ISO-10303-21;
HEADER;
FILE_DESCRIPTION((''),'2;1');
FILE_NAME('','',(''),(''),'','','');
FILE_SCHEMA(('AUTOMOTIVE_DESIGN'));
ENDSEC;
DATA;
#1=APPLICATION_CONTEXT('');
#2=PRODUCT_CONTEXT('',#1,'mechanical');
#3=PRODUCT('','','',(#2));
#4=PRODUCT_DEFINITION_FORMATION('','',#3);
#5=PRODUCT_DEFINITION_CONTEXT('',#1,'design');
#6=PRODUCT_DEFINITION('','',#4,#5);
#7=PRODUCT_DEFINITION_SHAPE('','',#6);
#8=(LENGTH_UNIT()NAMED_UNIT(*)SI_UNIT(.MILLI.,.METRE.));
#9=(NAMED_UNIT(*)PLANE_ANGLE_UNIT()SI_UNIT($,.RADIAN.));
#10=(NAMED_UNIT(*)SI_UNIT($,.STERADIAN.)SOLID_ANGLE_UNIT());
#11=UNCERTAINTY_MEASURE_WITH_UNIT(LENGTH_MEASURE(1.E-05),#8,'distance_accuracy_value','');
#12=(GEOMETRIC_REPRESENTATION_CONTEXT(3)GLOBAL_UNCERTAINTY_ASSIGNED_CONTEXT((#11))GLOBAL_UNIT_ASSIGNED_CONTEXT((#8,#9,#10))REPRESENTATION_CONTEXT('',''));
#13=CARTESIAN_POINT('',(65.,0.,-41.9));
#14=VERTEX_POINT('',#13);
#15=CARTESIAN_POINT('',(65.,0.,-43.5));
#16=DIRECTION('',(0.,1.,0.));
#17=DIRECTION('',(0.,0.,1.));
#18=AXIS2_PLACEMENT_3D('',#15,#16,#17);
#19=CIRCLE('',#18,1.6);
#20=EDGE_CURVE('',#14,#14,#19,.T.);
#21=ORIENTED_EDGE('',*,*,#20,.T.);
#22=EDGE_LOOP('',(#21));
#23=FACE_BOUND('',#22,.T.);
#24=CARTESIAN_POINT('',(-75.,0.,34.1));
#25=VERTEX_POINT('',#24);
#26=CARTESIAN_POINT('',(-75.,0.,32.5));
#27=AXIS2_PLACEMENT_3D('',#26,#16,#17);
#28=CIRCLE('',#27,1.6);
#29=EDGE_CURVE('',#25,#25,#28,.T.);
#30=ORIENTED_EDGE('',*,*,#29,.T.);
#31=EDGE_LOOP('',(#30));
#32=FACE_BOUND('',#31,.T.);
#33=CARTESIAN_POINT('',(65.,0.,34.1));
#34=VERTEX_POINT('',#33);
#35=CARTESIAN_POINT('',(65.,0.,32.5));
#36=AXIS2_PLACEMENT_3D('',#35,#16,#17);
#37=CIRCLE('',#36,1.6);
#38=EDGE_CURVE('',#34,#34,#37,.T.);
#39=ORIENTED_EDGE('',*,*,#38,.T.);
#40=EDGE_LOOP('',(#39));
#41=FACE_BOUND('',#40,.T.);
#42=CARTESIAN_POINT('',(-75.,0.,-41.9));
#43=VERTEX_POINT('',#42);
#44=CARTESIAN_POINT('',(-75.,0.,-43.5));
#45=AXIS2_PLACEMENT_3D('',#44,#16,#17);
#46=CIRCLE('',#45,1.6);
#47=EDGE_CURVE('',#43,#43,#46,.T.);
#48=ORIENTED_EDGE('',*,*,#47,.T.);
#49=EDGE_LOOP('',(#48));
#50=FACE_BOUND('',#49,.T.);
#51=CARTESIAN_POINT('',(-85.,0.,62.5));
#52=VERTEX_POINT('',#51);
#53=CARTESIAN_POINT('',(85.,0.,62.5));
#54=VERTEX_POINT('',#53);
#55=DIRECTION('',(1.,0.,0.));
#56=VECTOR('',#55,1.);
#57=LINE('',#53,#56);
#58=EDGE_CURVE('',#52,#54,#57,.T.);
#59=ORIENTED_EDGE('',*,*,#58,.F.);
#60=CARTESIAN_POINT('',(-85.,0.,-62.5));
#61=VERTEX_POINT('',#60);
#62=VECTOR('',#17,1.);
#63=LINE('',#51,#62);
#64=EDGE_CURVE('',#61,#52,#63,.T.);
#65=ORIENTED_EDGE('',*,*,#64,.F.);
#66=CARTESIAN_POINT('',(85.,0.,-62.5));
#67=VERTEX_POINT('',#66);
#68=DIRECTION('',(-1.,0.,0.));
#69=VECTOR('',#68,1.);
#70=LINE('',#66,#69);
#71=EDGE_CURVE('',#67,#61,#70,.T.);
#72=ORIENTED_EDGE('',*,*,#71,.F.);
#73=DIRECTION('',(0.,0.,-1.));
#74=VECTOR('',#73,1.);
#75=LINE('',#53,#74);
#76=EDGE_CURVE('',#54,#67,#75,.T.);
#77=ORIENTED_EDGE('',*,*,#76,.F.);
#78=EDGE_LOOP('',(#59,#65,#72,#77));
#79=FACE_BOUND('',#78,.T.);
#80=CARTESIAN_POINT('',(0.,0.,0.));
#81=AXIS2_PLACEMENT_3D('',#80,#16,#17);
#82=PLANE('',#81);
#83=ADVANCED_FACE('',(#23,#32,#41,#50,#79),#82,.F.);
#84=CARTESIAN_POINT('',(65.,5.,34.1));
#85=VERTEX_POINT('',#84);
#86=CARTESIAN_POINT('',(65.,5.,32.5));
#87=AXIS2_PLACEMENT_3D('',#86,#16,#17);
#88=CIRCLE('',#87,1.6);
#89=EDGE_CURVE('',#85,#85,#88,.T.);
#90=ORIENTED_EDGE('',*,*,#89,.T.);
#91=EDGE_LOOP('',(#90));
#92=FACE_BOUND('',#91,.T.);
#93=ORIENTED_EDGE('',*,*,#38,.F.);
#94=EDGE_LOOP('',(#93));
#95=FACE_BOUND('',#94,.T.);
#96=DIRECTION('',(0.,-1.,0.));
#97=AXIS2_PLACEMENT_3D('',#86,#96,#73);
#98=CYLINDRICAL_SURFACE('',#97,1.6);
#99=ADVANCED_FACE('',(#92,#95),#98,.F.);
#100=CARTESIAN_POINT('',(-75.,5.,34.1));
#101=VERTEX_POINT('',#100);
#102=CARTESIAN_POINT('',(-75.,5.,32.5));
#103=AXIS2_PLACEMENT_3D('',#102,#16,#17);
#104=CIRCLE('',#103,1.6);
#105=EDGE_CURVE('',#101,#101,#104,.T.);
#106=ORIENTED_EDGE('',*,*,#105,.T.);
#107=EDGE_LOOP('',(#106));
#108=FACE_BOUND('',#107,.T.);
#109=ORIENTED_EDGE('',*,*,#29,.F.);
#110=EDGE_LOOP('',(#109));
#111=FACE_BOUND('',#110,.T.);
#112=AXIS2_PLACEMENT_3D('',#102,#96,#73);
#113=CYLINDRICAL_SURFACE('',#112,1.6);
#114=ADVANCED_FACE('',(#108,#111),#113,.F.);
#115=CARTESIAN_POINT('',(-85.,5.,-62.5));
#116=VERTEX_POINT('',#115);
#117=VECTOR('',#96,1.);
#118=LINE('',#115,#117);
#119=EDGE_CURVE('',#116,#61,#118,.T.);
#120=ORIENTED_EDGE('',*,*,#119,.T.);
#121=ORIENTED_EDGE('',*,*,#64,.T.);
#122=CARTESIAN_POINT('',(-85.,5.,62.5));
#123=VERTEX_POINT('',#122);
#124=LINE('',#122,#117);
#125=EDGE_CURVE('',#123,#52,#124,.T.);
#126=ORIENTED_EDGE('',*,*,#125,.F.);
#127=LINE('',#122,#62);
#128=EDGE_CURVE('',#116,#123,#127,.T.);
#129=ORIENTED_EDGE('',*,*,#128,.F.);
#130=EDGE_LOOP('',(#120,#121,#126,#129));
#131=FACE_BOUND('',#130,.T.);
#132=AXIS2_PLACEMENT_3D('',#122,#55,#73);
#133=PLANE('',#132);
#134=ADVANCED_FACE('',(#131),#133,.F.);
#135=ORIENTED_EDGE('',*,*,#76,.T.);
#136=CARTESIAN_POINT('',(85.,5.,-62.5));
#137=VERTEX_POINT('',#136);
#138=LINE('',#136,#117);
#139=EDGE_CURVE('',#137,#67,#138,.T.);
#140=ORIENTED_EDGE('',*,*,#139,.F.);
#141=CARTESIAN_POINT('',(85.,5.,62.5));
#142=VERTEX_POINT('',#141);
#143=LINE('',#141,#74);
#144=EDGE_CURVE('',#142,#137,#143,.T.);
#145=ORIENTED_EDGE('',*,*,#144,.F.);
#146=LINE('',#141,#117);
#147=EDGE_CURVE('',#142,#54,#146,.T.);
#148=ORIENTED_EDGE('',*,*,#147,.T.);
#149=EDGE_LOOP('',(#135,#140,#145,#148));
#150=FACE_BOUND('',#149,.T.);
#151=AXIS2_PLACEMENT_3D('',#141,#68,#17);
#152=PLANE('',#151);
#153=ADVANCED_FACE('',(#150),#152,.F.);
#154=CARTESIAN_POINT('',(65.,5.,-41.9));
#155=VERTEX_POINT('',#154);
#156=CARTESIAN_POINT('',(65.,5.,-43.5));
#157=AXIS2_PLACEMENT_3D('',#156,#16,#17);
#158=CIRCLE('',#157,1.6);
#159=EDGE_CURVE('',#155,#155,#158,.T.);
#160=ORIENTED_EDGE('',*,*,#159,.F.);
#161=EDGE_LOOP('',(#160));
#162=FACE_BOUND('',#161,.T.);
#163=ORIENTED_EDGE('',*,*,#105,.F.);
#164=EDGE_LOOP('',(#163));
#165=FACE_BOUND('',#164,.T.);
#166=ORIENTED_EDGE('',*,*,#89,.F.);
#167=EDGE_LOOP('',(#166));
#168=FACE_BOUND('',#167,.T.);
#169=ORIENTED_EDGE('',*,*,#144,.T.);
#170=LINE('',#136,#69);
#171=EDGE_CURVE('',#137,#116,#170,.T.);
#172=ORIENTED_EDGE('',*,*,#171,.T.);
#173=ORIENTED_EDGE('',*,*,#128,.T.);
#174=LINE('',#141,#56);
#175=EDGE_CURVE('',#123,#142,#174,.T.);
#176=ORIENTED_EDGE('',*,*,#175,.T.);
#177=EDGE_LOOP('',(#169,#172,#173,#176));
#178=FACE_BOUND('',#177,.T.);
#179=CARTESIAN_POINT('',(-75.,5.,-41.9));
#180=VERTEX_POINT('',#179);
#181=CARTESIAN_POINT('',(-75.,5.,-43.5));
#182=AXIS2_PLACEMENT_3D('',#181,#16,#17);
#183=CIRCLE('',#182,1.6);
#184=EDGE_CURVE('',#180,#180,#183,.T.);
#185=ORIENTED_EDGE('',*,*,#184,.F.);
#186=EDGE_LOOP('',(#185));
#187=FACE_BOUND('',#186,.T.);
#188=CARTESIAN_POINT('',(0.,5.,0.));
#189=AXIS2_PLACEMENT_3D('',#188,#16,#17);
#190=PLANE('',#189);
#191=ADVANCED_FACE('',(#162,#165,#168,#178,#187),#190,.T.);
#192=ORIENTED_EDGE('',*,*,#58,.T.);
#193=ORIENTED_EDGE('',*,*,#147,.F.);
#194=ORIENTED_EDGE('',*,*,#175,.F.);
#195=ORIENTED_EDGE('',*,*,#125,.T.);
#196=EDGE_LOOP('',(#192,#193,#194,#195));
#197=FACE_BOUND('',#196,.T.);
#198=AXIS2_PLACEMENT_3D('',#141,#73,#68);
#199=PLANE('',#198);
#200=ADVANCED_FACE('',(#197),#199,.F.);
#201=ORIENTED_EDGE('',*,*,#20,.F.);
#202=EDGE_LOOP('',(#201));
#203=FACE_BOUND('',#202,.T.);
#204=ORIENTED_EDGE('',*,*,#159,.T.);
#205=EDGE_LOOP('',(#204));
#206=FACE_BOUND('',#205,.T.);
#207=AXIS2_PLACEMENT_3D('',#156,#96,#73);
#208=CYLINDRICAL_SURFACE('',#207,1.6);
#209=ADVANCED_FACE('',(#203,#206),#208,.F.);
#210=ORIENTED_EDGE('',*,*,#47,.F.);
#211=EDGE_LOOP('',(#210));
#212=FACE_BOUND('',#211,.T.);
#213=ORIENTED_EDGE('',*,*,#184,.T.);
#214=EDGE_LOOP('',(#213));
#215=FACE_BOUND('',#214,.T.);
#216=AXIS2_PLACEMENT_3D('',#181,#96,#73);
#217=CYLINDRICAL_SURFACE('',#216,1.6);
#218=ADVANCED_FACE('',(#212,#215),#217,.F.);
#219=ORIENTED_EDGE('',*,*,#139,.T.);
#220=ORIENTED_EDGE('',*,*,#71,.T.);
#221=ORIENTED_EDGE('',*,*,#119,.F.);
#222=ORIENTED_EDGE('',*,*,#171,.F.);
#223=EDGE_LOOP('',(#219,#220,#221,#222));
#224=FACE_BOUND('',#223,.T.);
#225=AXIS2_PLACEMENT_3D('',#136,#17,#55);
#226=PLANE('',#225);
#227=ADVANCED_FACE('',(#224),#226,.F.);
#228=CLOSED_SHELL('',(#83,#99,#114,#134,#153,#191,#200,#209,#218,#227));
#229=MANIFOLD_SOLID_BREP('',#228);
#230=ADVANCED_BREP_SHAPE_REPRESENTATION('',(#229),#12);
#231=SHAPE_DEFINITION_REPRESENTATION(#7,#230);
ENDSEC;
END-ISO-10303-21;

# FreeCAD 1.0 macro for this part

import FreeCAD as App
import Part
import Sketcher

V = App.Vector
Q = App.Units.Quantity


def add_polygon(sketch, points):
    """Adds a closed chain of lines whose ends are joined by coincident constraints."""
    first, n = sketch.GeometryCount, len(points)
    for a, b in zip(points, points[1:] + points[:1]):
        sketch.addGeometry(Part.LineSegment(App.Vector(*a, 0), App.Vector(*b, 0)), False)
    for i in range(n):
        sketch.addConstraint(Sketcher.Constraint("Coincident", first + i, 2, first + (i + 1) % n, 1))

doc = App.newDocument("Part")
body = doc.addObject("PartDesign::Body", "Body")

sketch1 = body.newObject("Sketcher::SketchObject", "Sketch")
sketch1.AttachmentSupport = (doc.getObject("XZ_Plane"), [""])
sketch1.MapMode = "FlatFace"
add_polygon(sketch1, [(-85, -62.5), (-85, 62.5), (85, 62.5), (85, -62.5)])
sketch1.addGeometry(Part.Circle(V(-75, 32.5, 0), V(0, 0, 1), 1.6), False)
sketch1.addGeometry(Part.Circle(V(65, 32.5, 0), V(0, 0, 1), 1.6), False)
sketch1.addGeometry(Part.Circle(V(-75, -43.5, 0), V(0, 0, 1), 1.6), False)
sketch1.addGeometry(Part.Circle(V(65, -43.5, 0), V(0, 0, 1), 1.6), False)
sketch1.addConstraint(Sketcher.Constraint("Vertical", 0))
sketch1.addConstraint(Sketcher.Constraint("Horizontal", 1))
sketch1.addConstraint(Sketcher.Constraint("Vertical", 2))
sketch1.addConstraint(Sketcher.Constraint("Horizontal", 3))
sketch1.addConstraint(Sketcher.Constraint("Equal", 4, 5))
sketch1.addConstraint(Sketcher.Constraint("Equal", 5, 6))
sketch1.addConstraint(Sketcher.Constraint("Equal", 6, 7))
sketch1.addConstraint(Sketcher.Constraint("Symmetric", 0, 2, 2, 2, -1, 1))
sketch1.addConstraint(Sketcher.Constraint("Horizontal", 4, 3, 5, 3))
sketch1.addConstraint(Sketcher.Constraint("Horizontal", 6, 3, 7, 3))
sketch1.addConstraint(Sketcher.Constraint("Vertical", 4, 3, 6, 3))
sketch1.addConstraint(Sketcher.Constraint("Vertical", 5, 3, 7, 3))
sketch1.addConstraint(Sketcher.Constraint("Diameter", 4, Q("3.2 mm")))
sketch1.addConstraint(Sketcher.Constraint("DistanceX", 1, 1, 1, 2, Q("170 mm")))
sketch1.addConstraint(Sketcher.Constraint("DistanceY", 0, 1, 0, 2, Q("125 mm")))
sketch1.addConstraint(Sketcher.Constraint("DistanceX", 4, 3, -1, 1, Q("75 mm")))
sketch1.addConstraint(Sketcher.Constraint("DistanceX", -1, 1, 5, 3, Q("65 mm")))
sketch1.addConstraint(Sketcher.Constraint("DistanceY", 6, 3, 4, 3, Q("76 mm")))
sketch1.addConstraint(Sketcher.Constraint("DistanceY", 4, 3, 0, 2, Q("30 mm")))
pad1 = body.newObject("PartDesign::Pad", "Pad")
pad1.Profile = sketch1
pad1.Length = 5
pad1.Reversed = True

doc.recompute()
